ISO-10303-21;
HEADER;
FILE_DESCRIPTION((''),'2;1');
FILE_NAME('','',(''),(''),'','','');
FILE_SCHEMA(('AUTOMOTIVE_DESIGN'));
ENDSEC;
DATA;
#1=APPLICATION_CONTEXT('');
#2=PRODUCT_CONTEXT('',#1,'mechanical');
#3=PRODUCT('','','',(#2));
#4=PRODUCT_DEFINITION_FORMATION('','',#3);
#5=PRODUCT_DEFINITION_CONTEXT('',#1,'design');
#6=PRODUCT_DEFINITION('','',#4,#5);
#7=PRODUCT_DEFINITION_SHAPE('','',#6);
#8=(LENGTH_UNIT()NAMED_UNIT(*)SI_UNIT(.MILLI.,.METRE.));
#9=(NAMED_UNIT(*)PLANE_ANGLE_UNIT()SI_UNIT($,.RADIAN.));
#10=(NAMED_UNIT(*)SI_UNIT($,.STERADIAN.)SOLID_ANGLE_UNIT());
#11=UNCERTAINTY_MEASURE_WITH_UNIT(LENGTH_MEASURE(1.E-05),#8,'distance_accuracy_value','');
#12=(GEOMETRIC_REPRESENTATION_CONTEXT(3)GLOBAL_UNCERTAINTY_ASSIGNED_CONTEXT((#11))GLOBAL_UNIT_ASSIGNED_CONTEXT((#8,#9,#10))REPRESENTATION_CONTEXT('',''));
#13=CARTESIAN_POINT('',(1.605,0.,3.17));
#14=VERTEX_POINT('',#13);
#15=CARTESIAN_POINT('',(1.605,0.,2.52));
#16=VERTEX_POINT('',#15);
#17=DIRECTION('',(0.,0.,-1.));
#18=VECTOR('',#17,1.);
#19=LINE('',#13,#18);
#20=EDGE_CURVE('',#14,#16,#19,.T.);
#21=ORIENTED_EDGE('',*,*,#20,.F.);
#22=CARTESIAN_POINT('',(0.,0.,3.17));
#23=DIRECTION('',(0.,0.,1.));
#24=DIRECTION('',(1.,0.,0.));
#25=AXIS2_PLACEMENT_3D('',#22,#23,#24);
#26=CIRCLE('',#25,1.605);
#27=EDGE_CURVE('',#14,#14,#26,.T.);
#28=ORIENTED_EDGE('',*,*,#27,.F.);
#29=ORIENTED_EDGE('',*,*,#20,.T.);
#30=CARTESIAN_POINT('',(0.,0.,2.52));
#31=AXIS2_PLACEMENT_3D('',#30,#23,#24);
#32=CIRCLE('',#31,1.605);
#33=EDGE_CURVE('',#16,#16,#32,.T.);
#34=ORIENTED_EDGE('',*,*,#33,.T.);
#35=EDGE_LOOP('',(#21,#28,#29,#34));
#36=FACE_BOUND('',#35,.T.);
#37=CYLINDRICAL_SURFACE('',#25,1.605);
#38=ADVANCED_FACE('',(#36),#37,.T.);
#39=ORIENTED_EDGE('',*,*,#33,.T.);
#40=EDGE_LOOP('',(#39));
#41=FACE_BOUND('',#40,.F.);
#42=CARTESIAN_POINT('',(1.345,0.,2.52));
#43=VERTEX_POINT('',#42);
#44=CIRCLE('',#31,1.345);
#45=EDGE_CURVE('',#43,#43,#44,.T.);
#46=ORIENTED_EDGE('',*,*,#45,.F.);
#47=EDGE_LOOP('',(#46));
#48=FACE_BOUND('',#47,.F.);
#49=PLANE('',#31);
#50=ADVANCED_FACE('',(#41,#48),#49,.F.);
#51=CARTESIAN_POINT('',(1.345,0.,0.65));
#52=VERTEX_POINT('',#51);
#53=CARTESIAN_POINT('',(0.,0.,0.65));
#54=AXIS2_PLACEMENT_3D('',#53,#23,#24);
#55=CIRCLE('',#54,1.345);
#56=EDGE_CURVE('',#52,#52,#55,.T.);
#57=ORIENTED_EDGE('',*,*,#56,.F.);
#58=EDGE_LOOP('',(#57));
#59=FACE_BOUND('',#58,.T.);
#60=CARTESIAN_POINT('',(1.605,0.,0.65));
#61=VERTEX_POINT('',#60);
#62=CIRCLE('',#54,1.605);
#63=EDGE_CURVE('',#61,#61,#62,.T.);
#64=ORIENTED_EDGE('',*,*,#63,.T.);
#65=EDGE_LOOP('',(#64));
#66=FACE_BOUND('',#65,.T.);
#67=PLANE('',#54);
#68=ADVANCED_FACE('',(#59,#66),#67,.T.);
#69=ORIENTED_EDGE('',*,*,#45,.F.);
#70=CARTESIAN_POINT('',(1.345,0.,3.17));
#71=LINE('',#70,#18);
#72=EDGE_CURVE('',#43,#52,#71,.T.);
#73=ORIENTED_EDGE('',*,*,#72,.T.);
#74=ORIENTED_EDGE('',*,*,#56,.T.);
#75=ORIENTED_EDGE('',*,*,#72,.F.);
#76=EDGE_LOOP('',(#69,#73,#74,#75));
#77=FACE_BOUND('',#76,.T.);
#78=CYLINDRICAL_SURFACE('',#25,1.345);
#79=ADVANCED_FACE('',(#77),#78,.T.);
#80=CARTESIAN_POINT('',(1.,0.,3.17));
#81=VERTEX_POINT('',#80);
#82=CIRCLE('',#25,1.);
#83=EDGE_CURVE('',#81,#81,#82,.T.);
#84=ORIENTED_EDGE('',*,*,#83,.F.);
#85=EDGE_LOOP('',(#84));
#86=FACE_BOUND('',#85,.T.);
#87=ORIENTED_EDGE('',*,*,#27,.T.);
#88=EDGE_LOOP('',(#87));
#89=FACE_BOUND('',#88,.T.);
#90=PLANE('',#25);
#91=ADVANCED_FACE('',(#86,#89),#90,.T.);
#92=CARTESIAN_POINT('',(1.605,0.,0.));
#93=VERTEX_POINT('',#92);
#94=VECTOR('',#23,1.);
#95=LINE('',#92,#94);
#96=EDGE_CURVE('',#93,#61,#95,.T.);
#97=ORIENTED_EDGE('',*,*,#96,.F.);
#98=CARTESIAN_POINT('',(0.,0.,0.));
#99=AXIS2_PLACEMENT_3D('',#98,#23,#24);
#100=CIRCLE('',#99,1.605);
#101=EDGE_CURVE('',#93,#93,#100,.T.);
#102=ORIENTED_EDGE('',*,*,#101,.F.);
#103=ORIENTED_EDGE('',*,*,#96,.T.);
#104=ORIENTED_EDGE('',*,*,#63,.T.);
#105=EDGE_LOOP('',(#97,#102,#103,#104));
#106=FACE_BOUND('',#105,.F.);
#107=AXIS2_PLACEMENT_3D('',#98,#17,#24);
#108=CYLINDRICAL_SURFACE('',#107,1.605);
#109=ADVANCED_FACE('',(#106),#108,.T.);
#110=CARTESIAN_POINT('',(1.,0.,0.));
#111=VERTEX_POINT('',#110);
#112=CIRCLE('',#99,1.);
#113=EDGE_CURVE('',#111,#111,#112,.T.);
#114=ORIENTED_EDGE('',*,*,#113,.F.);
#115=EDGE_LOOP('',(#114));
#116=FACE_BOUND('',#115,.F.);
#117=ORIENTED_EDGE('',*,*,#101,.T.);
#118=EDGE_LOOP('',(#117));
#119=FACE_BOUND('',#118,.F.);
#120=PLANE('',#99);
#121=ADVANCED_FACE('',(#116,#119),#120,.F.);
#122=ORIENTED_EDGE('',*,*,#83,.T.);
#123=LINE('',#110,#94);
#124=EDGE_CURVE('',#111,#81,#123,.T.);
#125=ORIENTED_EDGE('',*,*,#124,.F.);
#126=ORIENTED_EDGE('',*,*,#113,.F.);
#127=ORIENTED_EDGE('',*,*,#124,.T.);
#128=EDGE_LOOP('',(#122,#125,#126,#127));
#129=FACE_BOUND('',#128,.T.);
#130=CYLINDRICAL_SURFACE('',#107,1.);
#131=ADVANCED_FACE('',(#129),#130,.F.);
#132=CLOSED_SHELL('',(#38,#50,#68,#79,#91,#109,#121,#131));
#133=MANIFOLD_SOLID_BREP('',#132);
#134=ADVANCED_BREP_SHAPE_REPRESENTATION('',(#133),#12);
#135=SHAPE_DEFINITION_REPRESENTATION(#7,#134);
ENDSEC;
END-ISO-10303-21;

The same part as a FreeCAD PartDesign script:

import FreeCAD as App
import Part
import Sketcher
from FreeCAD import Vector
Q = App.Units.Quantity

doc = App.newDocument("Part")
body = doc.addObject("PartDesign::Body", "Body")

# Sketch on XY plane
sketch1 = doc.addObject("Sketcher::SketchObject", "Sketch")
body.addObject(sketch1)
sketch1.AttachmentSupport = (doc.XY_Plane, [""])
sketch1.MapMode = "FlatFace"
sketch1.addGeometry(Part.Circle(Vector(0, 0, 0), Vector(0, 0, 1), 1.605), False)
sketch1.addGeometry(Part.Circle(Vector(0, 0, 0), Vector(0, 0, 1), 1), False)
sketch1.addConstraint(Sketcher.Constraint("Coincident", 0, 3, -1, 1))
sketch1.addConstraint(Sketcher.Constraint("Coincident", 1, 3, -1, 1))
sketch1.addConstraint(Sketcher.Constraint("Diameter", 1, Q("2 mm")))
sketch1.addConstraint(Sketcher.Constraint("Diameter", 0, Q("3.21 mm")))
pad1 = doc.addObject("PartDesign::Pad", "Pad")
body.addObject(pad1)
pad1.Profile = sketch1
pad1.Length = 3.17

# Sketch on XY plane
sketch2 = doc.addObject("Sketcher::SketchObject", "Sketch001")
body.addObject(sketch2)
sketch2.AttachmentSupport = (doc.XY_Plane, [""])
sketch2.MapMode = "FlatFace"
sketch2.AttachmentOffset = App.Placement(Vector(0, 0, 3.17), App.Rotation())
sketch2.addGeometry(Part.Circle(Vector(0, 0, 0), Vector(0, 0, 1), 1.605), False)
sketch2.addGeometry(Part.Circle(Vector(0, 0, 0), Vector(0, 0, 1), 1.345), False)
sketch2.addConstraint(Sketcher.Constraint("Coincident", 0, 3, -1, 1))
sketch2.addConstraint(Sketcher.Constraint("Coincident", 1, 3, -1, 1))
sketch2.addConstraint(Sketcher.Constraint("Diameter", 0, Q("3.21 mm")))
sketch2.addConstraint(Sketcher.Constraint("Diameter", 1, Q("2.69 mm")))
pocket1 = doc.addObject("PartDesign::Pocket", "Pocket")
body.addObject(pocket1)
pocket1.Profile = sketch2
pocket1.Length = 2.52

# Sketch on XY plane
sketch3 = doc.addObject("Sketcher::SketchObject", "Sketch002")
body.addObject(sketch3)
sketch3.AttachmentSupport = (doc.XY_Plane, [""])
sketch3.MapMode = "FlatFace"
sketch3.AttachmentOffset = App.Placement(Vector(0, 0, 3.17), App.Rotation())
sketch3.addGeometry(Part.Circle(Vector(0, 0, 0), Vector(0, 0, 1), 1.605), False)
sketch3.addGeometry(Part.Circle(Vector(0, 0, 0), Vector(0, 0, 1), 1.345), False)
sketch3.addConstraint(Sketcher.Constraint("Coincident", 0, 3, -1, 1))
sketch3.addConstraint(Sketcher.Constraint("Coincident", 1, 3, -1, 1))
sketch3.addConstraint(Sketcher.Constraint("Diameter", 0, Q("3.21 mm")))
sketch3.addConstraint(Sketcher.Constraint("Diameter", 1, Q("2.69 mm")))
pad2 = doc.addObject("PartDesign::Pad", "Pad001")
body.addObject(pad2)
pad2.Profile = sketch3
pad2.Length = 0.65
pad2.Reversed = True
body2 = doc.addObject("PartDesign::Body", "Body001")

# Sketch on XY plane
sketch4 = doc.addObject("Sketcher::SketchObject", "Sketch003")
body2.addObject(sketch4)
sketch4.AttachmentSupport = (doc.getObject("XY_Plane001"), [""])
sketch4.MapMode = "FlatFace"
sketch4.AttachmentOffset = App.Placement(Vector(0, 0, 3.17), App.Rotation())
sketch4.addGeometry(Part.Circle(Vector(0, 0, 0), Vector(0, 0, 1), 1.605), False)
sketch4.addGeometry(Part.Circle(Vector(0, 0, 0), Vector(0, 0, 1), 1.345), False)
sketch4.addConstraint(Sketcher.Constraint("Coincident", 0, 3, -1, 1))
sketch4.addConstraint(Sketcher.Constraint("Coincident", 1, 3, -1, 1))
sketch4.addConstraint(Sketcher.Constraint("Diameter", 0, Q("3.21 mm")))
sketch4.addConstraint(Sketcher.Constraint("Diameter", 1, Q("2.69 mm")))
pad3 = doc.addObject("PartDesign::Pad", "Pad002")
body2.addObject(pad3)
pad3.Profile = sketch4
pad3.Length = 0.65
pad3.Reversed = True
body2.Visibility = False

doc.recompute()
